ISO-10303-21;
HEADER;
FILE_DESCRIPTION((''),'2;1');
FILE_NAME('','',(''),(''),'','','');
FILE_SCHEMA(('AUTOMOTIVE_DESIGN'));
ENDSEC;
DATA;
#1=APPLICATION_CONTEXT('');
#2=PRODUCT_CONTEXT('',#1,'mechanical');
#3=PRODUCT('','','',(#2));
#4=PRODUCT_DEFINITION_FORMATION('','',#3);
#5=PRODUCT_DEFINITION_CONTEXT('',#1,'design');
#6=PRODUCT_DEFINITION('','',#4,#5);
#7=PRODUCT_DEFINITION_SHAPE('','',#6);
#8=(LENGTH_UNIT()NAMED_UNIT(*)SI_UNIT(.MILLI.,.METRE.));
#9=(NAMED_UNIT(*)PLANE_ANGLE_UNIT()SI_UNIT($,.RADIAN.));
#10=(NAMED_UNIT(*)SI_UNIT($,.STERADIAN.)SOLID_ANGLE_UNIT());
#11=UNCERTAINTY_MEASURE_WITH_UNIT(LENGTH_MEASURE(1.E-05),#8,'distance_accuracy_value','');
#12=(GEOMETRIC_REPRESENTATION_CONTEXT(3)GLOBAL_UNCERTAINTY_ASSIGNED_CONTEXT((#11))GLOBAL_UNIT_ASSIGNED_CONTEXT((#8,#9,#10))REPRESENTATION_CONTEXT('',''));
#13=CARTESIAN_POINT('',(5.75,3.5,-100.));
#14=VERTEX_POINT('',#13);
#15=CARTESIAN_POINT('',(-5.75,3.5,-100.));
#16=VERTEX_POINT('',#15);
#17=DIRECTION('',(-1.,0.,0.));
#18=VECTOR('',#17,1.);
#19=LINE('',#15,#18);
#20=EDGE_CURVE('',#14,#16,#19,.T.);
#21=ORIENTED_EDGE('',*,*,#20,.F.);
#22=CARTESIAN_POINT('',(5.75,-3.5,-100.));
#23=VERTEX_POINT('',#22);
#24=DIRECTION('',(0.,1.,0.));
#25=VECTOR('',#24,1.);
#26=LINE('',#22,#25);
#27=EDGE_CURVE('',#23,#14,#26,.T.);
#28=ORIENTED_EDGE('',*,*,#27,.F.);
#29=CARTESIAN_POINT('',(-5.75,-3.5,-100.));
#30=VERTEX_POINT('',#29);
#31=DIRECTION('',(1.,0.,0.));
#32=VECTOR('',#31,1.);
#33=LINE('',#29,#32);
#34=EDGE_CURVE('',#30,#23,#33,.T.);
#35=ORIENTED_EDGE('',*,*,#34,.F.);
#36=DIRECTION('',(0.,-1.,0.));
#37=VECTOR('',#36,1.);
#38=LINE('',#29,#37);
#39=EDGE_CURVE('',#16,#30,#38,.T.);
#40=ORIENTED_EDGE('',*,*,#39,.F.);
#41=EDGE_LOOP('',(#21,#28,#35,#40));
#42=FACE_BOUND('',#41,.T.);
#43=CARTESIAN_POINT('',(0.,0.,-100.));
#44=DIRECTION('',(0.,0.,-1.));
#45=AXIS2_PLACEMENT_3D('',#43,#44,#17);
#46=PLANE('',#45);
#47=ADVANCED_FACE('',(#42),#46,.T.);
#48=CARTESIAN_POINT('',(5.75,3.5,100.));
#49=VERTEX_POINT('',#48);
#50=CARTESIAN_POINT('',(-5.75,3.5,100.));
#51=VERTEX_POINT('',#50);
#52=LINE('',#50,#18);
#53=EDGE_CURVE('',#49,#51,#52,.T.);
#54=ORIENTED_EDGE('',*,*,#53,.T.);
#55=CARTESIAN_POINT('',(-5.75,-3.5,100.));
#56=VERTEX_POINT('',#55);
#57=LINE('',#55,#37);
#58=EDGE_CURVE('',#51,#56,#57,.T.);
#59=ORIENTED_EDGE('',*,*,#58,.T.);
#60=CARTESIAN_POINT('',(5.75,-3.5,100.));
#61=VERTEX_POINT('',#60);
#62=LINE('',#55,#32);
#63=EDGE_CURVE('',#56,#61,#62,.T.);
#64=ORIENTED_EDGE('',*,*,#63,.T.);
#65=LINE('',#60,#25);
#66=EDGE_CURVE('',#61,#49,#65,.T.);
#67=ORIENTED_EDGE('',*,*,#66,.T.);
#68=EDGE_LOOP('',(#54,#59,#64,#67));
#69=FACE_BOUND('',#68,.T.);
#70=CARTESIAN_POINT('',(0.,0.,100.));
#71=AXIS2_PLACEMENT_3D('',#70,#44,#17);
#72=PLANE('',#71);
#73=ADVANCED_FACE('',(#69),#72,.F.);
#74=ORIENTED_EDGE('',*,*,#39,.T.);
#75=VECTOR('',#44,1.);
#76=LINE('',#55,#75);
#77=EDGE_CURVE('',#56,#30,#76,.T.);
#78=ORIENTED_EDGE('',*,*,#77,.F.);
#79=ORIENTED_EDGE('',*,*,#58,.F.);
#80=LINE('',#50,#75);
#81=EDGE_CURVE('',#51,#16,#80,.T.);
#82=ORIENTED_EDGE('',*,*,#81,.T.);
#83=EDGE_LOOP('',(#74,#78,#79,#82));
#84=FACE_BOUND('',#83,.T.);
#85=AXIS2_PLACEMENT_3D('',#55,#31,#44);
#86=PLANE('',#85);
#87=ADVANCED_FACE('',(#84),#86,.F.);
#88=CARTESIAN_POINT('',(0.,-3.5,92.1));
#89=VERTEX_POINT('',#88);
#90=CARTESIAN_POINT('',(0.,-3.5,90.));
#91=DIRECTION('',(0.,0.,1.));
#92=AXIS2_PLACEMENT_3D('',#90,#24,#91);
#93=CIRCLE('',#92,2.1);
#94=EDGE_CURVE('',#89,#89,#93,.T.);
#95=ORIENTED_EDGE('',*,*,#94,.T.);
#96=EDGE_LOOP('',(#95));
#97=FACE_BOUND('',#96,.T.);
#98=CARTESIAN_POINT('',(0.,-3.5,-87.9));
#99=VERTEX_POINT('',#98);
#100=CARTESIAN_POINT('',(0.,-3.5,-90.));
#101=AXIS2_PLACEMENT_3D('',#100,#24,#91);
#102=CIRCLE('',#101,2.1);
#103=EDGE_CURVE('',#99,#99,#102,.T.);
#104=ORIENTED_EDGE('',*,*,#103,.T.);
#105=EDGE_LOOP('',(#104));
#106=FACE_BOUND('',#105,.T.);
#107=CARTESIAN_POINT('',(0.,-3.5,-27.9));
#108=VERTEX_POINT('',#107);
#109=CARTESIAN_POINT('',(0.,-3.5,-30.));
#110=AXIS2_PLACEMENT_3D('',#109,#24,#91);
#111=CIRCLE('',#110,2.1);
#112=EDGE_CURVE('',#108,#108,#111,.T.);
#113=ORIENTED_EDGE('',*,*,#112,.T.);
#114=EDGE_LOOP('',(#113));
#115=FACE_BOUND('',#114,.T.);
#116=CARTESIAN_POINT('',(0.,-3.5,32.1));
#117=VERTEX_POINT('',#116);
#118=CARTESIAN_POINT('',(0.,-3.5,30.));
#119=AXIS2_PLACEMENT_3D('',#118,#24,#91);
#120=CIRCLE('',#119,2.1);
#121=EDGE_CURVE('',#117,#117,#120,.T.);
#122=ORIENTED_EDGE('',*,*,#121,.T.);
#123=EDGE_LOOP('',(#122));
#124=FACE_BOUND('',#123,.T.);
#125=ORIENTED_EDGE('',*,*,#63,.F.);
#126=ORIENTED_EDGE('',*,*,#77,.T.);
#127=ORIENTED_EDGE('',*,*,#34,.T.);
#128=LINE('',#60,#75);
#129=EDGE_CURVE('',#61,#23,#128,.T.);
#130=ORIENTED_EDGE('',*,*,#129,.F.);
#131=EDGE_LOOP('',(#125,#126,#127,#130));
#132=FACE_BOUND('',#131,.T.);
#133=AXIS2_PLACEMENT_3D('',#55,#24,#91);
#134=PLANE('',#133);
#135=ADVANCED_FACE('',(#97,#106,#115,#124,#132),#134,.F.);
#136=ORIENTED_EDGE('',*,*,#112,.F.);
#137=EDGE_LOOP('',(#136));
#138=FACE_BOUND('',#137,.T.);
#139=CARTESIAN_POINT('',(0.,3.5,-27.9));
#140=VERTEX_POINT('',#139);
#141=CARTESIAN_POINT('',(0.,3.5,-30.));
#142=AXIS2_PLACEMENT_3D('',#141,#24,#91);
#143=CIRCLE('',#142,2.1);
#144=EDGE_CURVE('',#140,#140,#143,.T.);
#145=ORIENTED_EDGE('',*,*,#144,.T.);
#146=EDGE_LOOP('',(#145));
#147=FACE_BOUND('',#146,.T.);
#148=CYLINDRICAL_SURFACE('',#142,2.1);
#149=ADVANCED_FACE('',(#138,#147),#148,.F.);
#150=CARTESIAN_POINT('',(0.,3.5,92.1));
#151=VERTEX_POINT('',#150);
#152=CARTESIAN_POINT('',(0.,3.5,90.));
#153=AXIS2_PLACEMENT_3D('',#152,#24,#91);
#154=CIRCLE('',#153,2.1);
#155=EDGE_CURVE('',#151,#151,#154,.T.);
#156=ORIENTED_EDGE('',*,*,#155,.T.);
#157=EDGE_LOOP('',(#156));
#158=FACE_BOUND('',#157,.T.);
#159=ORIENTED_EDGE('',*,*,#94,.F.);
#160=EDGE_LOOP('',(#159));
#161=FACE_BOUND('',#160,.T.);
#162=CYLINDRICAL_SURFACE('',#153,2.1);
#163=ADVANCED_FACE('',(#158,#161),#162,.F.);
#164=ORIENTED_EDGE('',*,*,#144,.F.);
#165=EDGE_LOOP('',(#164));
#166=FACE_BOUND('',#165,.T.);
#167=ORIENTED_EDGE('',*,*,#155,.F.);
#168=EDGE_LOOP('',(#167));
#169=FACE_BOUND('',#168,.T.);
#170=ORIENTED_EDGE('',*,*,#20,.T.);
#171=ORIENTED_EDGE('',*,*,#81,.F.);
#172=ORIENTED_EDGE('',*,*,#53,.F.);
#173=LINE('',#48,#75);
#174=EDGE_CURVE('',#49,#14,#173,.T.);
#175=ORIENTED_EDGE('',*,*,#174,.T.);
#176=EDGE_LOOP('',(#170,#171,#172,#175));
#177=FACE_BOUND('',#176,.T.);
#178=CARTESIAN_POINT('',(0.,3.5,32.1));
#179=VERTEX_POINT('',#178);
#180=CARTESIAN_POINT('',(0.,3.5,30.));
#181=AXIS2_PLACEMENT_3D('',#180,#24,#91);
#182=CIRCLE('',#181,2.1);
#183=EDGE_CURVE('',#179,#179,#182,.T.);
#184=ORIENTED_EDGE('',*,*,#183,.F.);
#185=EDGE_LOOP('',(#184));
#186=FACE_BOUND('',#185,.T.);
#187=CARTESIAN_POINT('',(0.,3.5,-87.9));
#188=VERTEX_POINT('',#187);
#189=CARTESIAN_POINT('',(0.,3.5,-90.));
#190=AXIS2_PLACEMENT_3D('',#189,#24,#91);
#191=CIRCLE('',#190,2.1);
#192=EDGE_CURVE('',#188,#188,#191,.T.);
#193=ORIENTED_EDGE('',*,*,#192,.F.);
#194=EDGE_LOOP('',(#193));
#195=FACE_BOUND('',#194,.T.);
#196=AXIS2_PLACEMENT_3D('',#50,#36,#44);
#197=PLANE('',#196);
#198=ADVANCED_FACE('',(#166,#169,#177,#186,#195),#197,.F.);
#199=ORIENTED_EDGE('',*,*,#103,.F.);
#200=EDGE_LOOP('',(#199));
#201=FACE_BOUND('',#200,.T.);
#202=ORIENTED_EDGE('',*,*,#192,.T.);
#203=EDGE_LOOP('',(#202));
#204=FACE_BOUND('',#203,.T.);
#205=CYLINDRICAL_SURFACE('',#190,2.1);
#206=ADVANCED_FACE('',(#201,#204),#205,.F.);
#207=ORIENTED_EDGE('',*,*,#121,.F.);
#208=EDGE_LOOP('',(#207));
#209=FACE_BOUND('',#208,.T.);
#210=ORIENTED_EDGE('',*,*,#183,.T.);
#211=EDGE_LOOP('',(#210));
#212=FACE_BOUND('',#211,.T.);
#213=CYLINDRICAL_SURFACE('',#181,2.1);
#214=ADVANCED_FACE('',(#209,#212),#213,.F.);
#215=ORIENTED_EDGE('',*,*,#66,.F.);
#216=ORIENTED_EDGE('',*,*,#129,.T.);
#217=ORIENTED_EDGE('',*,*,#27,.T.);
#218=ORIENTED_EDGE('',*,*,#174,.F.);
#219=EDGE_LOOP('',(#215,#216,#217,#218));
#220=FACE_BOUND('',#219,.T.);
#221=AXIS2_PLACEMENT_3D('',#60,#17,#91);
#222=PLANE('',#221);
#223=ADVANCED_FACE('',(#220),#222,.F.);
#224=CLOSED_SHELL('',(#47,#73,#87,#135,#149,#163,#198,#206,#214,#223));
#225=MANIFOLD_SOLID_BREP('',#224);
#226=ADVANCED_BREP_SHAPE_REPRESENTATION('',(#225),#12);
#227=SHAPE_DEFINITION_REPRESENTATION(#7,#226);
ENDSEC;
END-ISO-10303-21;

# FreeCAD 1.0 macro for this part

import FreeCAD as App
import Part
import Sketcher
Q = App.Units.Quantity

doc = App.newDocument("Part")
body = doc.addObject("PartDesign::Body", "Body")

sketch1 = doc.addObject("Sketcher::SketchObject", "Sketch")
body.addObject(sketch1)
sketch1.AttachmentSupport = (doc.XY_Plane, [""])
sketch1.MapMode = "FlatFace"
sketch1.addGeometry([
    Part.LineSegment(App.Vector(-5.75, 3.5, 0), App.Vector(-5.75, -3.5, 0)),
    Part.LineSegment(App.Vector(-5.75, -3.5, 0), App.Vector(5.75, -3.5, 0)),
    Part.LineSegment(App.Vector(5.75, -3.5, 0), App.Vector(5.75, 3.5, 0)),
    Part.LineSegment(App.Vector(5.75, 3.5, 0), App.Vector(-5.75, 3.5, 0)),
], False)
sketch1.addConstraint([
    Sketcher.Constraint("Coincident", 0, 2, 1, 1),
    Sketcher.Constraint("Coincident", 1, 2, 2, 1),
    Sketcher.Constraint("Coincident", 2, 2, 3, 1),
    Sketcher.Constraint("Coincident", 3, 2, 0, 1),
    Sketcher.Constraint("Vertical", 0),
    Sketcher.Constraint("Horizontal", 1),
    Sketcher.Constraint("Vertical", 2),
    Sketcher.Constraint("Horizontal", 3),
    Sketcher.Constraint("Symmetric", 0, 2, 2, 2, -1, 1),
    Sketcher.Constraint("DistanceY", 0, 2, 0, 1, Q("7 mm")),
    Sketcher.Constraint("DistanceX", 1, 1, 1, 2, Q("11.5 mm")),
])
pad1 = doc.addObject("PartDesign::Pad", "Pad")
body.addObject(pad1)
pad1.Profile = sketch1
pad1.Length = 200
pad1.Midplane = True

sketch2 = doc.addObject("Sketcher::SketchObject", "Sketch001")
body.addObject(sketch2)
sketch2.AttachmentSupport = (doc.XZ_Plane, [""])
sketch2.MapMode = "FlatFace"
sketch2.AttachmentOffset = App.Placement(App.Vector(0, 0, -3.5), App.Rotation())
sketch2.addGeometry([
    Part.Circle(App.Vector(0, -90, 0), App.Vector(0, 0, 1), 2.1),
    Part.Circle(App.Vector(0, -30, 0), App.Vector(0, 0, 1), 2.1),
    Part.Circle(App.Vector(0, 30, 0), App.Vector(0, 0, 1), 2.1),
    Part.Circle(App.Vector(0, 90, 0), App.Vector(0, 0, 1), 2.1),
], False)
sketch2.addConstraint([
    Sketcher.Constraint("Equal", 0, 1),
    Sketcher.Constraint("Equal", 1, 2),
    Sketcher.Constraint("Equal", 2, 3),
    Sketcher.Constraint("Symmetric", 1, 3, 2, 3, -1, 1),
    Sketcher.Constraint("Symmetric", 0, 3, 3, 3, -1, 1),
    Sketcher.Constraint("PointOnObject", 0, 3, -2),
    Sketcher.Constraint("PointOnObject", 1, 3, -2),
    Sketcher.Constraint("Diameter", 0, Q("4.2 mm")),
    Sketcher.Constraint("DistanceY", 0, 3, -1, 1, Q("90 mm")),
    Sketcher.Constraint("DistanceY", 1, 3, -1, 1, Q("30 mm")),
])
doc.recompute()
hole = doc.addObject("PartDesign::Hole", "Hole")
body.addObject(hole)
hole.Profile = sketch2
hole.ThreadType = "None"
hole.Diameter = 4.2
hole.DepthType = "ThroughAll"
hole.Reversed = True

doc.recompute()
